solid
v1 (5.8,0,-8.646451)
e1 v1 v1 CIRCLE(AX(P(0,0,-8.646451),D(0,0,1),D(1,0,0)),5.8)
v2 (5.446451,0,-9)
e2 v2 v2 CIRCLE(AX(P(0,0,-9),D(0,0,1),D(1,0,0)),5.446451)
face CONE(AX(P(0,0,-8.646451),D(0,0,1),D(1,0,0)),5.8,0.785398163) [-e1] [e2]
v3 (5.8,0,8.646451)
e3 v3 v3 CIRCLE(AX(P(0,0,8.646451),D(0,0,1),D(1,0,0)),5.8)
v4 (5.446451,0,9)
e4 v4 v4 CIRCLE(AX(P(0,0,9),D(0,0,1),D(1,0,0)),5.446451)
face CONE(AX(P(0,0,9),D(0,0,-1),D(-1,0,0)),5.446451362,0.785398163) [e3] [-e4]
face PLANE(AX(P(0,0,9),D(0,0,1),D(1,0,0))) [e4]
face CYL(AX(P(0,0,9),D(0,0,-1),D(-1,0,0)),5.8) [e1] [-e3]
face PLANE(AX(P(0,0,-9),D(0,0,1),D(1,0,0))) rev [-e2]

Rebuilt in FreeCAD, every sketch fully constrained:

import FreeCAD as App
import Part
import Sketcher

V = App.Vector


def add_polygon(sketch, points):
    """Adds a closed chain of lines whose ends are joined by coincident constraints."""
    first, n = sketch.GeometryCount, len(points)
    for a, b in zip(points, points[1:] + points[:1]):
        sketch.addGeometry(Part.LineSegment(App.Vector(*a, 0), App.Vector(*b, 0)), False)
    for i in range(n):
        sketch.addConstraint(Sketcher.Constraint("Coincident", first + i, 2, first + (i + 1) % n, 1))

doc = App.newDocument("Part")
params = doc.addObject("Spreadsheet::Sheet", "Params")
for row, (alias, value) in enumerate([
    ("sketch1_diameter", "11.6 mm"),
    ("pad1_length", "18 mm"),
    ("groove_angle", "360 deg"),
], start=1):
    params.set(f"A{row}", alias)
    params.set(f"B{row}", "=" + value)
    params.setAlias(f"B{row}", alias)

body = doc.addObject("PartDesign::Body", "Body")

# Sketch on XY plane
sketch1 = body.newObject("Sketcher::SketchObject", "Sketch")
sketch1.AttachmentSupport = (doc.getObject("XY_Plane"), [""])
sketch1.MapMode = "FlatFace"
sketch1.addGeometry(Part.Circle(V(0, 0, 0), V(0, 0, 1), 6), False)
sketch1.addConstraint([
    Sketcher.Constraint("Coincident", 0, 3, -1, 1),
    Sketcher.Constraint("Diameter", 0, 11.6),
])
sketch1.setExpression("Constraints[1]", "Params.sketch1_diameter")
pad1 = body.newObject("PartDesign::Pad", "Pad")
pad1.Profile = sketch1
pad1.setExpression("Length", "Params.pad1_length")
pad1.Midplane = True

# Sketch on YZ plane
sketch2 = body.newObject("Sketcher::SketchObject", "Sketch001")
sketch2.AttachmentSupport = (doc.getObject("YZ_Plane"), [""])
sketch2.MapMode = "FlatFace"
add_polygon(sketch2, [(5.8, -8.65), (5.45, -9), (5.8, -9)])  # lines 0-2
add_polygon(sketch2, [(5.45, 9), (5.8, 8.65), (5.8, 9)])  # lines 3-5
sketch2.addConstraint([
    Sketcher.Constraint("Horizontal", 1),
    Sketcher.Constraint("Vertical", 2),
    Sketcher.Constraint("Vertical", 4),
    Sketcher.Constraint("Horizontal", 5),
    Sketcher.Constraint("Symmetric", 2, 2, 3, 2, -1),
    Sketcher.Constraint("Symmetric", 0, 2, 5, 2, -1),
    Sketcher.Constraint("Perpendicular", 0, 3),
    Sketcher.Constraint("DistanceY", 0, 2, -1, 1, 9.0),
    Sketcher.Constraint("DistanceX", -1, 1, 1, 2, 5.8),
    Sketcher.Constraint("DistanceX", 1, 1, 1, 2, 0.353549),
])
groove = body.newObject("PartDesign::Groove", "Groove")
groove.Profile = sketch2
groove.ReferenceAxis = (sketch2, ["V_Axis"])
groove.setExpression("Angle", "Params.groove_angle")

doc.recompute()
